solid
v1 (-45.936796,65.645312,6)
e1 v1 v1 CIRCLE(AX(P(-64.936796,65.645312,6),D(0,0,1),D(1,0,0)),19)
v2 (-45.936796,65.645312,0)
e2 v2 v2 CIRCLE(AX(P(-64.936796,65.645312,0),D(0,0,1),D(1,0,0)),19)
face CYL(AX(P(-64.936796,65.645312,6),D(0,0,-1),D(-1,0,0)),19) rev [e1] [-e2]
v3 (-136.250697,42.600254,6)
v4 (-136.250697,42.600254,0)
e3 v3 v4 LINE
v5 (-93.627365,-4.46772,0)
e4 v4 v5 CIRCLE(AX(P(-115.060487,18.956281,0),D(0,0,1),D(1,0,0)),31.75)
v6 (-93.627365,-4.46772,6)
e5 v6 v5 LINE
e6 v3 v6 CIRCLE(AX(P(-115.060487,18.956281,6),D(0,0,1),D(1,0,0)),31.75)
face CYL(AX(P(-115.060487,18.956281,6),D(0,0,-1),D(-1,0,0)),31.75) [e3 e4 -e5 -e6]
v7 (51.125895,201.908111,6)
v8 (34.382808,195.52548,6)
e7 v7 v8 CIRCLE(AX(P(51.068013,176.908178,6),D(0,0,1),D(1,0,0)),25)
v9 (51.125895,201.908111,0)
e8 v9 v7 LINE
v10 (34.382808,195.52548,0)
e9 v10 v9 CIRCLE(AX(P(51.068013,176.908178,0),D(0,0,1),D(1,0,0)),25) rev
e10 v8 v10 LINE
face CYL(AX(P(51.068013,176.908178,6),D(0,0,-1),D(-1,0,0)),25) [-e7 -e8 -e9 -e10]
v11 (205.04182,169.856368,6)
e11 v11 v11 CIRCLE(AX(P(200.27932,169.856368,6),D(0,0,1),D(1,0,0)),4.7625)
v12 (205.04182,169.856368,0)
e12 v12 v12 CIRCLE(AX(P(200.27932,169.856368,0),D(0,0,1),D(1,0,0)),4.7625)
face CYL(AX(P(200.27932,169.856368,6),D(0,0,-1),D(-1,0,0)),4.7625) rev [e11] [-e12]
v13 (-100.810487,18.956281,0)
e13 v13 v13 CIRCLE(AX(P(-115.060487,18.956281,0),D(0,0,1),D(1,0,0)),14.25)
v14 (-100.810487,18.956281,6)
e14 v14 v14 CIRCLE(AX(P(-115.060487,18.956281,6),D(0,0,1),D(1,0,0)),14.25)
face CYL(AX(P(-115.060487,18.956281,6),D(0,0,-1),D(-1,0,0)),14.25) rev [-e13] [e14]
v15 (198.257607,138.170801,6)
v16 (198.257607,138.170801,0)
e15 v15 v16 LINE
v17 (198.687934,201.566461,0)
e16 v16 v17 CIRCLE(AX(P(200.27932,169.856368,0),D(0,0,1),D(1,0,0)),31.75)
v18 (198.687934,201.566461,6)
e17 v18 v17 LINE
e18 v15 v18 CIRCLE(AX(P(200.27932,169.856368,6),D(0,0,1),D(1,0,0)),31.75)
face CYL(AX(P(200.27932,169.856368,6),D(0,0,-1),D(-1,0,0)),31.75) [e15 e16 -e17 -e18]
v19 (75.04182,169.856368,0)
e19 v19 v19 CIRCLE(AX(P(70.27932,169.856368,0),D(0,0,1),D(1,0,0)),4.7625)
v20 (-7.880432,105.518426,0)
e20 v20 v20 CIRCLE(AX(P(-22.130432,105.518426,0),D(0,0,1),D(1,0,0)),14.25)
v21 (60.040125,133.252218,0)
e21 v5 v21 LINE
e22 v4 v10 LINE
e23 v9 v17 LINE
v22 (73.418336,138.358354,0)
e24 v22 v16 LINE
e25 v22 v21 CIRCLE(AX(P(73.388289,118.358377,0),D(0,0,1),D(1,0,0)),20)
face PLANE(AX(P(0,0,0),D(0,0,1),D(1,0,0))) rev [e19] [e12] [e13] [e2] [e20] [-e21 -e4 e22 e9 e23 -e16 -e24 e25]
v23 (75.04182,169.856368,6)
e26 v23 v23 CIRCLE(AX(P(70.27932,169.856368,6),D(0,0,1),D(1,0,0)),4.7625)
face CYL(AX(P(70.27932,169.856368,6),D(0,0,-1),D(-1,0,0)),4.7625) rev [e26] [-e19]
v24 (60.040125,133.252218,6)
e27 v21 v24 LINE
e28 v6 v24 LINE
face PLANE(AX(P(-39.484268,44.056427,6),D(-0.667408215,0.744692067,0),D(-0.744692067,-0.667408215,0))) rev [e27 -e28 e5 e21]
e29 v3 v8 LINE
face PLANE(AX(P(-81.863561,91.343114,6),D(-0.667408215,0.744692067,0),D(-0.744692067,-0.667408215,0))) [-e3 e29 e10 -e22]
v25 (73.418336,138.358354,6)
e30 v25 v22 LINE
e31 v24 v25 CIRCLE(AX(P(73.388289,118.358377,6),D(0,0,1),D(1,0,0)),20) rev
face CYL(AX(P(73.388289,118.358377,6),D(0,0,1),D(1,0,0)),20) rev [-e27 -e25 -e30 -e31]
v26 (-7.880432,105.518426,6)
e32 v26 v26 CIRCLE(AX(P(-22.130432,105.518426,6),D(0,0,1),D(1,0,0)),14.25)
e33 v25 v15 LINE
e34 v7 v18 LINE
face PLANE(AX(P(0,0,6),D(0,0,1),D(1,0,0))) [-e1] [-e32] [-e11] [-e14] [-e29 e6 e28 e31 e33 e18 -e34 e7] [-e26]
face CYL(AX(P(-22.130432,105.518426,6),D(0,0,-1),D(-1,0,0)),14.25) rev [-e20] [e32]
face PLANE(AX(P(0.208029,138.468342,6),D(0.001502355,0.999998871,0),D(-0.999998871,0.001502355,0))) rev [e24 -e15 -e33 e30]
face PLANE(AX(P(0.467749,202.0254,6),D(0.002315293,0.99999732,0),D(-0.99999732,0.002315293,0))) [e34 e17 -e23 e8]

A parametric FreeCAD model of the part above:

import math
import FreeCAD as App
import Part
import Sketcher

V = App.Vector


def edges_at(feature, points):
    """Names of the edges that pass closest to the given points."""
    edges = feature.Shape.Edges
    near = lambda p: min(range(len(edges)), key=lambda i: edges[i].distToShape(Part.Vertex(*p))[0])
    return sorted({f"Edge{near(p) + 1}" for p in points})

doc = App.newDocument("Part")
body = doc.addObject("PartDesign::Body", "Body")

sketch1 = body.newObject("Sketcher::SketchObject", "Sketch")
sketch1.AttachmentSupport = (doc.getObject("XY_Plane"), [""])
sketch1.MapMode = "FlatFace"
sketch1.addGeometry(Part.LineSegment(V(198.7, 201.6, 0), V(41.5, 201.9, 0)), False)
sketch1.addGeometry(Part.LineSegment(V(41.5, 201.9, 0), V(-136.3, 42.6, 0)), False)
sketch1.addGeometry(Part.ArcOfCircle(Part.Circle(V(-115.1, 19, 0), V(0, 0, 1), 31.8), math.radians(132), math.radians(312)), False)
sketch1.addGeometry(Part.LineSegment(V(-93.6, -4.5, 0), V(65.8, 138.4, 0)), False)
sketch1.addGeometry(Part.LineSegment(V(65.8, 138.4, 0), V(198.3, 138.2, 0)), False)
sketch1.addGeometry(Part.ArcOfCircle(Part.Circle(V(200.3, 169.9, 0), V(0, 0, 1), 31.8), math.radians(-94), math.radians(93)), False)
sketch1.addGeometry(Part.Circle(V(-115.1, 19, 0), V(0, 0, 1), 14.2), False)
sketch1.addGeometry(Part.Circle(V(-64.9, 65.6, 0), V(0, 0, 1), 19), False)
sketch1.addGeometry(Part.Circle(V(200.3, 169.9, 0), V(0, 0, 1), 4.8), False)
sketch1.addGeometry(Part.Circle(V(70.3, 169.9, 0), V(0, 0, 1), 4.8), False)
sketch1.addGeometry(Part.Circle(V(-22.1, 105.5, 0), V(0, 0, 1), 14.2), False)
sketch1.addConstraint(Sketcher.Constraint("Coincident", 0, 2, 1, 1))
sketch1.addConstraint(Sketcher.Constraint("Tangent", 1, 2, 2, 1))
sketch1.addConstraint(Sketcher.Constraint("Coincident", 2, 2, 3, 1))
sketch1.addConstraint(Sketcher.Constraint("Coincident", 3, 2, 4, 1))
sketch1.addConstraint(Sketcher.Constraint("Coincident", 4, 2, 5, 1))
sketch1.addConstraint(Sketcher.Constraint("Coincident", 5, 2, 0, 1))
sketch1.addConstraint(Sketcher.Constraint("Coincident", 6, 3, 2, 3))
sketch1.addConstraint(Sketcher.Constraint("Coincident", 8, 3, 5, 3))
sketch1.addConstraint(Sketcher.Constraint("Equal", 2, 5))
sketch1.addConstraint(Sketcher.Constraint("Equal", 8, 9))
sketch1.addConstraint(Sketcher.Constraint("Equal", 6, 10))
sketch1.addConstraint(Sketcher.Constraint("Parallel", 1, 3))
sketch1.addConstraint(Sketcher.Constraint("Horizontal", 8, 3, 9, 3))
sketch1.addConstraint(Sketcher.Constraint("Diameter", 7, 38.0))
sketch1.addConstraint(Sketcher.Constraint("Diameter", 6, 28.5))
sketch1.addConstraint(Sketcher.Constraint("Radius", 2, 31.75))
sketch1.addConstraint(Sketcher.Constraint("Diameter", 8, 9.525))
sketch1.addConstraint(Sketcher.Constraint("DistanceX", 9, 3, 5, 3, 130.0))
sketch1.addConstraint(Sketcher.Constraint("DistanceX", 0, 2, 9, 3, 28.75))
sketch1.addConstraint(Sketcher.Constraint("DistanceY", 2, 2, 6, 3, 23.424001))
sketch1.addConstraint(Sketcher.Constraint("DistanceY", -1, 1, 4, 2, 138.170801))
sketch1.addConstraint(Sketcher.Constraint("DistanceX", 1, 2, 7, 3, 71.313902))
sketch1.addConstraint(Sketcher.Constraint("Distance", 1, 238.729571))
sketch1.addConstraint(Sketcher.Constraint("DistanceY", -1, 1, 2, 3, 18.956281))
sketch1.addConstraint(Sketcher.Constraint("DistanceX", -1, 1, 5, 3, 200.27932))
sketch1.addConstraint(Sketcher.Constraint("DistanceY", -1, 1, 5, 3, 169.856368))
sketch1.addConstraint(Sketcher.Constraint("DistanceY", -1, 1, 7, 3, 65.645312))
sketch1.addConstraint(Sketcher.Constraint("DistanceX", 10, 3, -1, 1, 22.130432))
sketch1.addConstraint(Sketcher.Constraint("DistanceY", -1, 1, 0, 2, 201.93033))
sketch1.addConstraint(Sketcher.Constraint("DistanceX", -1, 1, 3, 2, 65.75039))
sketch1.addConstraint(Sketcher.Constraint("DistanceY", -1, 1, 5, 2, 201.566461))
sketch1.addConstraint(Sketcher.Constraint("DistanceY", 1, 2, 10, 3, 62.918172))
pad1 = body.newObject("PartDesign::Pad", "Pad")
pad1.Profile = sketch1
pad1.Length = 6
doc.recompute()

fillet = body.newObject("PartDesign::Fillet", "Fillet")
fillet.Base = (pad1, edges_at(pad1, [(41.529, 201.93, 3)]))
fillet.Radius = 25
doc.recompute()

fillet2 = body.newObject("PartDesign::Fillet", "Fillet001")
fillet2.Base = (fillet, edges_at(fillet, [(65.75, 138.37, 3)]))
fillet2.Radius = 20

doc.recompute()
